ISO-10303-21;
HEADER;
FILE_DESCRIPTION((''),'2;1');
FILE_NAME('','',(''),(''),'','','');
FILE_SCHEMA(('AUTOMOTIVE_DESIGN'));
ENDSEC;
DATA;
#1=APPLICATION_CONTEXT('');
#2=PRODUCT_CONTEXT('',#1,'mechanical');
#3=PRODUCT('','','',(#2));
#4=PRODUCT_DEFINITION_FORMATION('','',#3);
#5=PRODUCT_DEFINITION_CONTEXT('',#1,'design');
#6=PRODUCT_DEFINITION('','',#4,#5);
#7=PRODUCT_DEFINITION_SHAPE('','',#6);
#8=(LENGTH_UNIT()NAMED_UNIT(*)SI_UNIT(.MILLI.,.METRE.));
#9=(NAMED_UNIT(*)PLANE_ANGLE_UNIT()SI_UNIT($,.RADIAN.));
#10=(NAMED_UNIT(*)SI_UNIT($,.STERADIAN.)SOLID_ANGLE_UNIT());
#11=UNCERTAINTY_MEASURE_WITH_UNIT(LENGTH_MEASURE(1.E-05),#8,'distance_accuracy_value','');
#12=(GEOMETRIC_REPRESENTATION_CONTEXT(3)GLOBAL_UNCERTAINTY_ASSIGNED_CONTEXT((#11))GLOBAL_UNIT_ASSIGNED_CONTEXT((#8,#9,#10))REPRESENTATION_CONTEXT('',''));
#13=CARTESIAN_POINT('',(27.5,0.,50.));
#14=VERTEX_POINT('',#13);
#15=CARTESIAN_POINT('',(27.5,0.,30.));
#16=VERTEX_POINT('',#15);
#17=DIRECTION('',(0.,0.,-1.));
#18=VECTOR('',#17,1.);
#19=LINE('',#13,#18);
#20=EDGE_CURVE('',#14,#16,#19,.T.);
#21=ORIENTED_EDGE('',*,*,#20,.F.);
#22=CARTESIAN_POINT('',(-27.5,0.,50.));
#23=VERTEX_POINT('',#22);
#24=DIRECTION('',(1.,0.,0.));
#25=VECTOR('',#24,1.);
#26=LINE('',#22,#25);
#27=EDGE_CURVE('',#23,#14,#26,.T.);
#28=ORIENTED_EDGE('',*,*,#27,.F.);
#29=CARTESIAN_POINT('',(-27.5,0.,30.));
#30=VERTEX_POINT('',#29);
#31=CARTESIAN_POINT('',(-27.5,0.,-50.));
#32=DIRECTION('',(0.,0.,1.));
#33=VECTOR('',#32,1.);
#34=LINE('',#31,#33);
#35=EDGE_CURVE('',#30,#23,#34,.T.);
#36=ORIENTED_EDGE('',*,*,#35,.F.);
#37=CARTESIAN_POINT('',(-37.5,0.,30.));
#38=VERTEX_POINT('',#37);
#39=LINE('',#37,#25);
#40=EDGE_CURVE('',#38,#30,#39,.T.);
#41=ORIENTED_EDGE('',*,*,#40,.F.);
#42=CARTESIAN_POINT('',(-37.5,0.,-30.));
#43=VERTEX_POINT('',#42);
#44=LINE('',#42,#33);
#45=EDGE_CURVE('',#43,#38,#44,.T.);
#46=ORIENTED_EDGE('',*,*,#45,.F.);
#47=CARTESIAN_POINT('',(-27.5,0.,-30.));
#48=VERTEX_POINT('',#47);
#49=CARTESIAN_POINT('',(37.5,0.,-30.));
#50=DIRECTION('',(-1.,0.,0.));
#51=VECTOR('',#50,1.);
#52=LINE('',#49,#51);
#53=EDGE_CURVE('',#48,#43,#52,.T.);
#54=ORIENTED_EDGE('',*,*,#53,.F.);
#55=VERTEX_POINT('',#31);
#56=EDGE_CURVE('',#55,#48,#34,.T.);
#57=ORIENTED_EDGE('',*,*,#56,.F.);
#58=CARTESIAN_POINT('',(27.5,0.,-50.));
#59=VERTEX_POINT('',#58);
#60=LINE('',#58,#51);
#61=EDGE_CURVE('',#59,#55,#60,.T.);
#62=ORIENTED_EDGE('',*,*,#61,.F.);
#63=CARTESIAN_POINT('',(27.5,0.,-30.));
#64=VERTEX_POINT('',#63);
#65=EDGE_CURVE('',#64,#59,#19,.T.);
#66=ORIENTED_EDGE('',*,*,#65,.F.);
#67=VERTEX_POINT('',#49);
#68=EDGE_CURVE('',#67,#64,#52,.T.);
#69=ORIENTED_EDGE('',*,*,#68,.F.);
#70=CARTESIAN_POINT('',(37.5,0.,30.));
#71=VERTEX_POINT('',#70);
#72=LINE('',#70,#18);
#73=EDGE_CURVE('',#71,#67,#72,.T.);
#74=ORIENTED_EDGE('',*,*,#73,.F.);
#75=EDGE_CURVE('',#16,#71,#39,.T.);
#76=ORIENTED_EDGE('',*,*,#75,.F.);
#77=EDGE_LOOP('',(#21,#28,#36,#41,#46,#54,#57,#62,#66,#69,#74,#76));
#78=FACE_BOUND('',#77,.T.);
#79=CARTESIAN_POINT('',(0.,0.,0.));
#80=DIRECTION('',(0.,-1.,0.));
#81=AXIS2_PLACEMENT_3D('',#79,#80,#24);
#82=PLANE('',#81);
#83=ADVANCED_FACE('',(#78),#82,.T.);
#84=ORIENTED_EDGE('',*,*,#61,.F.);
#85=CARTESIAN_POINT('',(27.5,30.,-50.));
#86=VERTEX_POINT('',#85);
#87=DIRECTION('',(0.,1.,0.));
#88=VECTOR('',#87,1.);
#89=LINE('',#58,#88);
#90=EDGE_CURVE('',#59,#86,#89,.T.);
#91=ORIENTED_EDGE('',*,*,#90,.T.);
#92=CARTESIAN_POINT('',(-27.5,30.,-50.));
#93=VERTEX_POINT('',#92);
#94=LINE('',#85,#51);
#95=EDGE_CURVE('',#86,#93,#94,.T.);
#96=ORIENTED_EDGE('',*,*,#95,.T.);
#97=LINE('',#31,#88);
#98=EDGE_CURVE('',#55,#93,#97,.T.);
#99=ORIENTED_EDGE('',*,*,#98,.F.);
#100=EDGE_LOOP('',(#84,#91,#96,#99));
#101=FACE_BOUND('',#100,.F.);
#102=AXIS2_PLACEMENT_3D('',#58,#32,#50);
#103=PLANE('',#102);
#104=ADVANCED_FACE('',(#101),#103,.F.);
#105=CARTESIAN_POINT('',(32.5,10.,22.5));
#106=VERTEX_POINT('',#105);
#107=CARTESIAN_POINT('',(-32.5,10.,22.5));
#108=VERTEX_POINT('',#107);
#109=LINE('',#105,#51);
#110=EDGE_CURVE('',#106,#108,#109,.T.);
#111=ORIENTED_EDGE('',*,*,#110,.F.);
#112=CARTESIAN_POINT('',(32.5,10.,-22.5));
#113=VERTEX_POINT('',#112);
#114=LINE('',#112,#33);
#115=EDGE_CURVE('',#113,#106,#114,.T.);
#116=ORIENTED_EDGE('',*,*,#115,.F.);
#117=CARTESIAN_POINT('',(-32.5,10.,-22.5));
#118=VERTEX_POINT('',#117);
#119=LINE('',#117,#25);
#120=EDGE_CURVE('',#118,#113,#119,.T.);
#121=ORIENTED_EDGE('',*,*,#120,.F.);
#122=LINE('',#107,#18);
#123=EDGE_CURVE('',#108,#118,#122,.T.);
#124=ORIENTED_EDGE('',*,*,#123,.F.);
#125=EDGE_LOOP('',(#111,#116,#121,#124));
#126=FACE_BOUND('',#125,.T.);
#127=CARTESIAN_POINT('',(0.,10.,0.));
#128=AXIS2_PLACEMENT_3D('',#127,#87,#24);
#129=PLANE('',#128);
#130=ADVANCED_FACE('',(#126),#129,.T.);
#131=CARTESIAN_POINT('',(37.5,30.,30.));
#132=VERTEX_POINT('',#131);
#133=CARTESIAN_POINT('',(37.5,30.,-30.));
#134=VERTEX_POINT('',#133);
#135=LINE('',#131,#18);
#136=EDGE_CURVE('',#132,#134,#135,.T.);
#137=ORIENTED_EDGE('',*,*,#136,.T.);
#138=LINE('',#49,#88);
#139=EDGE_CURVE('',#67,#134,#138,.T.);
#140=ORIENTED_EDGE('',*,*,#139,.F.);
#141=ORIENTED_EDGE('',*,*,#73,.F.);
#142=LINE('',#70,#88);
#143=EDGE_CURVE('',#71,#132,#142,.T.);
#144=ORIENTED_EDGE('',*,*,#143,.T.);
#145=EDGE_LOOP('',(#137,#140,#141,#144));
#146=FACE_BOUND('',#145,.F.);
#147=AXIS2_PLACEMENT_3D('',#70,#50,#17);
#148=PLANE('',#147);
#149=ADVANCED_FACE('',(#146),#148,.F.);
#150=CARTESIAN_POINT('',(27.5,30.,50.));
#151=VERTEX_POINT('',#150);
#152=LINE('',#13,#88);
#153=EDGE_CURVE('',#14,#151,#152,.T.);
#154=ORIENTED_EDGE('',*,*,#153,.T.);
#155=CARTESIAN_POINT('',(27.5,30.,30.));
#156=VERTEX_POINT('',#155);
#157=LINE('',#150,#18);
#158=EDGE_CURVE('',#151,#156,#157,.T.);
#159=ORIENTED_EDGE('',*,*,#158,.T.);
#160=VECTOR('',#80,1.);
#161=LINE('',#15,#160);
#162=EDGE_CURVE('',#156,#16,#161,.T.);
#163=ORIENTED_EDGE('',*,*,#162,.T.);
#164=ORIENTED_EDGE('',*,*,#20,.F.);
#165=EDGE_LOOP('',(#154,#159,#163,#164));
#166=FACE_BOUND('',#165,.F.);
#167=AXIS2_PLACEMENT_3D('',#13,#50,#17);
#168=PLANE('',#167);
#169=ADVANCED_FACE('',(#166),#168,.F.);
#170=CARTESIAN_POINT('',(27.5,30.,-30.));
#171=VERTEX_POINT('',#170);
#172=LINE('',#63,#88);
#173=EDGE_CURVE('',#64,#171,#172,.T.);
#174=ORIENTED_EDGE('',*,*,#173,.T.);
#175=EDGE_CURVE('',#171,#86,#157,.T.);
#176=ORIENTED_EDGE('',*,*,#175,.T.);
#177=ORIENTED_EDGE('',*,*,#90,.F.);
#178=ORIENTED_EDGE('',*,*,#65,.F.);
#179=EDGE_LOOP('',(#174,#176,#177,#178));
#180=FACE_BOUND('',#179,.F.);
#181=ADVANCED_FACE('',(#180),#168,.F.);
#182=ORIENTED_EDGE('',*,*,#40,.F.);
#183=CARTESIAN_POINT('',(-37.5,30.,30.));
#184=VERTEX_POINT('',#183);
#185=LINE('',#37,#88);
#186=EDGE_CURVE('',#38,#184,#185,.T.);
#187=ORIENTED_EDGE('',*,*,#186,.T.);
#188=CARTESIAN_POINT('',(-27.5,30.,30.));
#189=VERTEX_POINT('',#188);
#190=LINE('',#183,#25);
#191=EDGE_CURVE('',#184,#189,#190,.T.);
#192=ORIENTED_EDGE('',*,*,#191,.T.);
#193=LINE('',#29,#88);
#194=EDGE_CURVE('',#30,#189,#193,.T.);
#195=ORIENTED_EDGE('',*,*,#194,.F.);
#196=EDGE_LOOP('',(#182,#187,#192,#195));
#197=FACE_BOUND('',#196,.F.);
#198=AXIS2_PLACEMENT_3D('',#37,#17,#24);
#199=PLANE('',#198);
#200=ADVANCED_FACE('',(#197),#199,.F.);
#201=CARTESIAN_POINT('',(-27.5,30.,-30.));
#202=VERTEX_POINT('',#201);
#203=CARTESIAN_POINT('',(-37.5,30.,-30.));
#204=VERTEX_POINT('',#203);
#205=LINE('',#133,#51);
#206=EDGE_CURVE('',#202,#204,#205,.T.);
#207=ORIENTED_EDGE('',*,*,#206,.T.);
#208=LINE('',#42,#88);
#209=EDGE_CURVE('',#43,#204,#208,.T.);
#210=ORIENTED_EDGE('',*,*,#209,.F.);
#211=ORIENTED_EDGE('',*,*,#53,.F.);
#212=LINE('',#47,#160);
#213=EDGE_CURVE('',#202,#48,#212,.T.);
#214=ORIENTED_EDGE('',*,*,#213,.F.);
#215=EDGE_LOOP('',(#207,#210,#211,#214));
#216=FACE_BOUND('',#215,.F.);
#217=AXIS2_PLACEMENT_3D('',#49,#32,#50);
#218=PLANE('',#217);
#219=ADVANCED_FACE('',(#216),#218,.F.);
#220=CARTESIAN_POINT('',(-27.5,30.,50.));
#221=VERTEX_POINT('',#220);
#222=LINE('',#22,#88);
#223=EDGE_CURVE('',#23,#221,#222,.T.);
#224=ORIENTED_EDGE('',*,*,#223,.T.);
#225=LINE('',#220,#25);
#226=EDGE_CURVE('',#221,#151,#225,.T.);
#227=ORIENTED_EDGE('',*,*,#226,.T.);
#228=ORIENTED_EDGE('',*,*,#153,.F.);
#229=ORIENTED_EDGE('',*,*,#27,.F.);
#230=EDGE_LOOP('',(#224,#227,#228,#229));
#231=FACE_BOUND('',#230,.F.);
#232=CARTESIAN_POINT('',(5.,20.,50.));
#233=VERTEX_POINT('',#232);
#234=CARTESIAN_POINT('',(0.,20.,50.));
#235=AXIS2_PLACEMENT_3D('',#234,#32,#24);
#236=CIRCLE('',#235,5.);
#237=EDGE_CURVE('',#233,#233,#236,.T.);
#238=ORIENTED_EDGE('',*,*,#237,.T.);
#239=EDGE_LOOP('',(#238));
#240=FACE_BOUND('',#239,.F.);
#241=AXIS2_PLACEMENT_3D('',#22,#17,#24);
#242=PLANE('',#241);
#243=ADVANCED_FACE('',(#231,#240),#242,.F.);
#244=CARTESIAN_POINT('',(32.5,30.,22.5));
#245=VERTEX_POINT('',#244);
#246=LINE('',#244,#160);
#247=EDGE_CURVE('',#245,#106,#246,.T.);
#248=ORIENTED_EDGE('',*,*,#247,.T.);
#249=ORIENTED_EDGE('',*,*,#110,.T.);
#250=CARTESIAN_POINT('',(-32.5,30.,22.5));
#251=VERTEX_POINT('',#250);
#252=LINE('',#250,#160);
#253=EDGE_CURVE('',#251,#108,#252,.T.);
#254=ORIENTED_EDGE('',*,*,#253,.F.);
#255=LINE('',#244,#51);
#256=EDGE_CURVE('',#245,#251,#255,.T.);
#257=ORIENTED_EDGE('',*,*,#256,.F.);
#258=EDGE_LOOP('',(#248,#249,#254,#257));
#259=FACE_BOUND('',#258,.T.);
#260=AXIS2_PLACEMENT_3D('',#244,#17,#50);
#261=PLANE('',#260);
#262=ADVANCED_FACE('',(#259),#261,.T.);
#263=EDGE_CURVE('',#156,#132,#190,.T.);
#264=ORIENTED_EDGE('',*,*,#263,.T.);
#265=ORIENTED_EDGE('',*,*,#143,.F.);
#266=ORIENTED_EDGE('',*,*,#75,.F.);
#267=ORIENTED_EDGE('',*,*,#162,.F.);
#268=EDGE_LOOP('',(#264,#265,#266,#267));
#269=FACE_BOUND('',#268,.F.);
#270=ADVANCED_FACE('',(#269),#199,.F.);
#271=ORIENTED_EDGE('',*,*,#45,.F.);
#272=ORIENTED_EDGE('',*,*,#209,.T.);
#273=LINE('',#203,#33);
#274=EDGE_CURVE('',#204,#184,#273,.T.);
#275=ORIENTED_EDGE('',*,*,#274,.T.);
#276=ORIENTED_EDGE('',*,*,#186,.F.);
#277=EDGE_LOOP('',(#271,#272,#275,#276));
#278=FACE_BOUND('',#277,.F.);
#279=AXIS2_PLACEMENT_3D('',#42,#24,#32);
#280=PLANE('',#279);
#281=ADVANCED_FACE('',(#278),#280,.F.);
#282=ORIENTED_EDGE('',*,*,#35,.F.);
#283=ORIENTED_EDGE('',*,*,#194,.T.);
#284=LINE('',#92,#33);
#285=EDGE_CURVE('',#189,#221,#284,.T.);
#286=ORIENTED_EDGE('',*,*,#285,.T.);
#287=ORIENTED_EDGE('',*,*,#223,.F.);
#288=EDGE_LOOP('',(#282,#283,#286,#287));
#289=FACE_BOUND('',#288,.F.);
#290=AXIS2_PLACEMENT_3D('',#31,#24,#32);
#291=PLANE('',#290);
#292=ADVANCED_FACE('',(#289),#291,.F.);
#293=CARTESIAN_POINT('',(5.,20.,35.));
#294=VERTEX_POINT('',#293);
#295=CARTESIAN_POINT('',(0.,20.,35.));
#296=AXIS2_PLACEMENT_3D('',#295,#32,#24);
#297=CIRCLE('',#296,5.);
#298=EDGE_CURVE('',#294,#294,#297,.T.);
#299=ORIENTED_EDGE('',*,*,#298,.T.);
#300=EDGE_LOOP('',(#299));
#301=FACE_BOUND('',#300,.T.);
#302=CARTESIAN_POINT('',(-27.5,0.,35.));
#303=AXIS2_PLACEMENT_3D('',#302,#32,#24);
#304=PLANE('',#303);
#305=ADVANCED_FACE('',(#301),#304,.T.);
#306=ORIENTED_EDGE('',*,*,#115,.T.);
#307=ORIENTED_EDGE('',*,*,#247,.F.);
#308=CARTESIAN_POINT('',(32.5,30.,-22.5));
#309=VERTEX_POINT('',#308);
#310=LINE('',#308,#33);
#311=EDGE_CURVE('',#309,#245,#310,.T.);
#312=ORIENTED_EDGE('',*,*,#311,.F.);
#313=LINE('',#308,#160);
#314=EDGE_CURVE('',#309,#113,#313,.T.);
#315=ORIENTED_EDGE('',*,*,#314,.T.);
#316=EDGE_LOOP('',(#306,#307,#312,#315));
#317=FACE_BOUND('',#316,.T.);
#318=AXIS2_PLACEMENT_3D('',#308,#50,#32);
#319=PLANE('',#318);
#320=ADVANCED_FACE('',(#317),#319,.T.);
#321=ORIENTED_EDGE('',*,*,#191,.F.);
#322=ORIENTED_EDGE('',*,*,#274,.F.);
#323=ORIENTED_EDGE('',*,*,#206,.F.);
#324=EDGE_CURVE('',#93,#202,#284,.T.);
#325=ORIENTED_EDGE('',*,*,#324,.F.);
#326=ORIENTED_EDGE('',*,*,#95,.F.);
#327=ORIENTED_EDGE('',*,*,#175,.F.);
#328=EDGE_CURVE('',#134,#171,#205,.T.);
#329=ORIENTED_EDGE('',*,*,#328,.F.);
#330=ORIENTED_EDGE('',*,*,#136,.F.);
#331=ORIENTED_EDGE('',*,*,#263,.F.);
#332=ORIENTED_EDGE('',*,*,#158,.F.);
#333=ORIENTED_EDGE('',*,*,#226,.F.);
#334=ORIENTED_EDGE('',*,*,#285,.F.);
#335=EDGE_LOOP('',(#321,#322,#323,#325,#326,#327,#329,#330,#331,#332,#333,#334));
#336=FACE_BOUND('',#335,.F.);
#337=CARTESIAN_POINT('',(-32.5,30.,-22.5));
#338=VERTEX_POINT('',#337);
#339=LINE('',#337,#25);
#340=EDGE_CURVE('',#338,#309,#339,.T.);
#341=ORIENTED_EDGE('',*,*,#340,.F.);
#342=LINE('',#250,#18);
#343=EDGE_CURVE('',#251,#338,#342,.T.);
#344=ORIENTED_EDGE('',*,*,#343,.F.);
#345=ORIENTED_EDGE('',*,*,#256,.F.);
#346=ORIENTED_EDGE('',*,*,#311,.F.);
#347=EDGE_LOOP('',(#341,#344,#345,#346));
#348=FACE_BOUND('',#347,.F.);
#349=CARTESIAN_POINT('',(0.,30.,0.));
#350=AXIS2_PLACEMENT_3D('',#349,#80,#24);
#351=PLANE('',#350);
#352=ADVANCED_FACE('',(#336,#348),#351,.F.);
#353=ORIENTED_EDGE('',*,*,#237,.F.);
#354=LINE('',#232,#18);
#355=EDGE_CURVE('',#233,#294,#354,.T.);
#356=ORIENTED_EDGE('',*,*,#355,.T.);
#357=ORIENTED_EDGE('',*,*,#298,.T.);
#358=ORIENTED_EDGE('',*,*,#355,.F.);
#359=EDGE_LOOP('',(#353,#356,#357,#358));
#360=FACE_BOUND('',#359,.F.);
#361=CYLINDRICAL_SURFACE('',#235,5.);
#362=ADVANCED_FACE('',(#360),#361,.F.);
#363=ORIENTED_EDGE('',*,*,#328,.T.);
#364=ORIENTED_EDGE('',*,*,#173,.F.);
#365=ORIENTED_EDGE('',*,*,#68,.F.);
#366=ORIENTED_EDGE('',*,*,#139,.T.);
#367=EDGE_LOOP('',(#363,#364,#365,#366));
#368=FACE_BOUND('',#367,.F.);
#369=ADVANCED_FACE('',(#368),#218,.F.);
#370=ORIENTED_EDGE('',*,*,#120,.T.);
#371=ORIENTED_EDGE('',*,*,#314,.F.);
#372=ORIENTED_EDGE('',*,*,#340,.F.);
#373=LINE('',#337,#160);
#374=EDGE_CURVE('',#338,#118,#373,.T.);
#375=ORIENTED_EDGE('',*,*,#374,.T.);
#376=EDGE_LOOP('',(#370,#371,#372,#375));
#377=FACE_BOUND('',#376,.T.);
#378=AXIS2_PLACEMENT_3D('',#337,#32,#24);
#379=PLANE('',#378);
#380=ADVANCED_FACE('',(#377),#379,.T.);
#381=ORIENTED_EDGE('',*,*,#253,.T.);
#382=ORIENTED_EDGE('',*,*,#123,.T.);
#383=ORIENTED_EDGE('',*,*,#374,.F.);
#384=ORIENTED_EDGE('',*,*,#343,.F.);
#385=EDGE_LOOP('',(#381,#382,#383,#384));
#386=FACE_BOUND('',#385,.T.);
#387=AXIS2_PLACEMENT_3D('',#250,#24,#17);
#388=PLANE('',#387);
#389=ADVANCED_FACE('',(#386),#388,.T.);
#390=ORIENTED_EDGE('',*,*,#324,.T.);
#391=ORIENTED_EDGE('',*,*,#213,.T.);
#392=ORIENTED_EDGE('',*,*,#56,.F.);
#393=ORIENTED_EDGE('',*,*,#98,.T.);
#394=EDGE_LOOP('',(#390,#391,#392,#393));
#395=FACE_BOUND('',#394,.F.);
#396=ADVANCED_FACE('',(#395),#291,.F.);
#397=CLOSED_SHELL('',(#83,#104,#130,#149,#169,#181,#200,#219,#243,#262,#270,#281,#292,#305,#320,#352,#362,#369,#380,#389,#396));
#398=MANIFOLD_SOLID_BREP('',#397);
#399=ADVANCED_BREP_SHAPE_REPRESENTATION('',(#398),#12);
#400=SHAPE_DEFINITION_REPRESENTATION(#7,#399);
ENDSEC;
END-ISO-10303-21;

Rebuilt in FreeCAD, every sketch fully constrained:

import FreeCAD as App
import Part
import Sketcher
from FreeCAD import Vector


def add_polygon(sketch, points):
    """Adds a closed chain of lines whose ends are joined by coincident constraints."""
    first, n = sketch.GeometryCount, len(points)
    for a, b in zip(points, points[1:] + points[:1]):
        sketch.addGeometry(Part.LineSegment(App.Vector(*a, 0), App.Vector(*b, 0)), False)
    for i in range(n):
        sketch.addConstraint(Sketcher.Constraint("Coincident", first + i, 2, first + (i + 1) % n, 1))

doc = App.newDocument("Part")
params = doc.addObject("Spreadsheet::Sheet", "Params")
for row, (alias, value) in enumerate([
    ("sketch1_width", "55 mm"),
    ("sketch1_height", "100 mm"),
    ("pad1_length", "30 mm"),
    ("sketch2_diameter", "10 mm"),
    ("pocket1_length", "15 mm"),
    ("sketch3_width", "75 mm"),
    ("sketch3_height", "60 mm"),
    ("pad2_length", "30 mm"),
    ("sketch4_width", "65 mm"),
    ("sketch4_height", "45 mm"),
    ("pocket2_length", "20 mm"),
], start=1):
    params.set(f"A{row}", alias)
    params.set(f"B{row}", "=" + value)
    params.setAlias(f"B{row}", alias)

body = doc.addObject("PartDesign::Body", "Body")

# Sketch on XZ plane
sketch1 = doc.addObject("Sketcher::SketchObject", "Sketch")
body.addObject(sketch1)
sketch1.AttachmentSupport = (doc.XZ_Plane, [""])
sketch1.MapMode = "FlatFace"
add_polygon(sketch1, [(-28, -50), (-28, 50), (28, 50), (28, -50)])  # lines 0-3
sketch1.addConstraint(Sketcher.Constraint("Vertical", 0))
sketch1.addConstraint(Sketcher.Constraint("Horizontal", 1))
sketch1.addConstraint(Sketcher.Constraint("Vertical", 2))
sketch1.addConstraint(Sketcher.Constraint("Horizontal", 3))
sketch1.addConstraint(Sketcher.Constraint("Symmetric", 0, 2, 2, 2, -1, 1))
sketch1.addConstraint(Sketcher.Constraint("DistanceX", 1, 1, 1, 2, 55.0))
sketch1.addConstraint(Sketcher.Constraint("DistanceY", 0, 1, 0, 2, 100.0))
sketch1.setExpression("Constraints[9]", "Params.sketch1_width")
sketch1.setExpression("Constraints[10]", "Params.sketch1_height")
pad1 = doc.addObject("PartDesign::Pad", "Pad")
body.addObject(pad1)
pad1.Profile = sketch1
pad1.setExpression("Length", "Params.pad1_length")
pad1.Reversed = True

# Sketch on XY plane
sketch2 = doc.addObject("Sketcher::SketchObject", "Sketch001")
body.addObject(sketch2)
sketch2.AttachmentSupport = (doc.XY_Plane, [""])
sketch2.MapMode = "FlatFace"
sketch2.AttachmentOffset = App.Placement(Vector(0, 0, 50), App.Rotation())
sketch2.addGeometry(Part.Circle(Vector(0, 20, 0), Vector(0, 0, 1), 5), False)
sketch2.addConstraint(Sketcher.Constraint("PointOnObject", 0, 3, -2))
sketch2.addConstraint(Sketcher.Constraint("Diameter", 0, 10.0))
sketch2.addConstraint(Sketcher.Constraint("DistanceY", -1, 1, 0, 3, 20.0))
sketch2.setExpression("Constraints[1]", "Params.sketch2_diameter")
pocket1 = doc.addObject("PartDesign::Pocket", "Pocket")
body.addObject(pocket1)
pocket1.Profile = sketch2
pocket1.setExpression("Length", "Params.pocket1_length")

# Sketch on XZ plane
sketch3 = doc.addObject("Sketcher::SketchObject", "Sketch002")
body.addObject(sketch3)
sketch3.AttachmentSupport = (doc.XZ_Plane, [""])
sketch3.MapMode = "FlatFace"
add_polygon(sketch3, [(38, 30), (-38, 30), (-38, -30), (38, -30)])  # lines 0-3
sketch3.addConstraint(Sketcher.Constraint("Horizontal", 0))
sketch3.addConstraint(Sketcher.Constraint("Vertical", 1))
sketch3.addConstraint(Sketcher.Constraint("Horizontal", 2))
sketch3.addConstraint(Sketcher.Constraint("Vertical", 3))
sketch3.addConstraint(Sketcher.Constraint("Symmetric", 0, 2, 2, 2, -1, 1))
sketch3.addConstraint(Sketcher.Constraint("DistanceX", 0, 2, 0, 1, 75.0))
sketch3.addConstraint(Sketcher.Constraint("DistanceY", 1, 2, 1, 1, 60.0))
sketch3.setExpression("Constraints[9]", "Params.sketch3_width")
sketch3.setExpression("Constraints[10]", "Params.sketch3_height")
pad2 = doc.addObject("PartDesign::Pad", "Pad001")
body.addObject(pad2)
pad2.Profile = sketch3
pad2.setExpression("Length", "Params.pad2_length")
pad2.Reversed = True

# Sketch on XZ plane
sketch4 = doc.addObject("Sketcher::SketchObject", "Sketch003")
body.addObject(sketch4)
sketch4.AttachmentSupport = (doc.XZ_Plane, [""])
sketch4.MapMode = "FlatFace"
sketch4.AttachmentOffset = App.Placement(Vector(0, 0, -30), App.Rotation())
add_polygon(sketch4, [(32, -22), (-32, -22), (-32, 22), (32, 22)])  # lines 0-3
sketch4.addConstraint(Sketcher.Constraint("Horizontal", 0))
sketch4.addConstraint(Sketcher.Constraint("Vertical", 1))
sketch4.addConstraint(Sketcher.Constraint("Horizontal", 2))
sketch4.addConstraint(Sketcher.Constraint("Vertical", 3))
sketch4.addConstraint(Sketcher.Constraint("Symmetric", 0, 2, 2, 2, -1, 1))
sketch4.addConstraint(Sketcher.Constraint("DistanceX", 0, 2, 0, 1, 65.0))
sketch4.addConstraint(Sketcher.Constraint("DistanceY", 1, 1, 1, 2, 45.0))
sketch4.setExpression("Constraints[9]", "Params.sketch4_width")
sketch4.setExpression("Constraints[10]", "Params.sketch4_height")
pocket2 = doc.addObject("PartDesign::Pocket", "Pocket001")
body.addObject(pocket2)
pocket2.Profile = sketch4
pocket2.setExpression("Length", "Params.pocket2_length")
pocket2.Reversed = True

doc.recompute()
